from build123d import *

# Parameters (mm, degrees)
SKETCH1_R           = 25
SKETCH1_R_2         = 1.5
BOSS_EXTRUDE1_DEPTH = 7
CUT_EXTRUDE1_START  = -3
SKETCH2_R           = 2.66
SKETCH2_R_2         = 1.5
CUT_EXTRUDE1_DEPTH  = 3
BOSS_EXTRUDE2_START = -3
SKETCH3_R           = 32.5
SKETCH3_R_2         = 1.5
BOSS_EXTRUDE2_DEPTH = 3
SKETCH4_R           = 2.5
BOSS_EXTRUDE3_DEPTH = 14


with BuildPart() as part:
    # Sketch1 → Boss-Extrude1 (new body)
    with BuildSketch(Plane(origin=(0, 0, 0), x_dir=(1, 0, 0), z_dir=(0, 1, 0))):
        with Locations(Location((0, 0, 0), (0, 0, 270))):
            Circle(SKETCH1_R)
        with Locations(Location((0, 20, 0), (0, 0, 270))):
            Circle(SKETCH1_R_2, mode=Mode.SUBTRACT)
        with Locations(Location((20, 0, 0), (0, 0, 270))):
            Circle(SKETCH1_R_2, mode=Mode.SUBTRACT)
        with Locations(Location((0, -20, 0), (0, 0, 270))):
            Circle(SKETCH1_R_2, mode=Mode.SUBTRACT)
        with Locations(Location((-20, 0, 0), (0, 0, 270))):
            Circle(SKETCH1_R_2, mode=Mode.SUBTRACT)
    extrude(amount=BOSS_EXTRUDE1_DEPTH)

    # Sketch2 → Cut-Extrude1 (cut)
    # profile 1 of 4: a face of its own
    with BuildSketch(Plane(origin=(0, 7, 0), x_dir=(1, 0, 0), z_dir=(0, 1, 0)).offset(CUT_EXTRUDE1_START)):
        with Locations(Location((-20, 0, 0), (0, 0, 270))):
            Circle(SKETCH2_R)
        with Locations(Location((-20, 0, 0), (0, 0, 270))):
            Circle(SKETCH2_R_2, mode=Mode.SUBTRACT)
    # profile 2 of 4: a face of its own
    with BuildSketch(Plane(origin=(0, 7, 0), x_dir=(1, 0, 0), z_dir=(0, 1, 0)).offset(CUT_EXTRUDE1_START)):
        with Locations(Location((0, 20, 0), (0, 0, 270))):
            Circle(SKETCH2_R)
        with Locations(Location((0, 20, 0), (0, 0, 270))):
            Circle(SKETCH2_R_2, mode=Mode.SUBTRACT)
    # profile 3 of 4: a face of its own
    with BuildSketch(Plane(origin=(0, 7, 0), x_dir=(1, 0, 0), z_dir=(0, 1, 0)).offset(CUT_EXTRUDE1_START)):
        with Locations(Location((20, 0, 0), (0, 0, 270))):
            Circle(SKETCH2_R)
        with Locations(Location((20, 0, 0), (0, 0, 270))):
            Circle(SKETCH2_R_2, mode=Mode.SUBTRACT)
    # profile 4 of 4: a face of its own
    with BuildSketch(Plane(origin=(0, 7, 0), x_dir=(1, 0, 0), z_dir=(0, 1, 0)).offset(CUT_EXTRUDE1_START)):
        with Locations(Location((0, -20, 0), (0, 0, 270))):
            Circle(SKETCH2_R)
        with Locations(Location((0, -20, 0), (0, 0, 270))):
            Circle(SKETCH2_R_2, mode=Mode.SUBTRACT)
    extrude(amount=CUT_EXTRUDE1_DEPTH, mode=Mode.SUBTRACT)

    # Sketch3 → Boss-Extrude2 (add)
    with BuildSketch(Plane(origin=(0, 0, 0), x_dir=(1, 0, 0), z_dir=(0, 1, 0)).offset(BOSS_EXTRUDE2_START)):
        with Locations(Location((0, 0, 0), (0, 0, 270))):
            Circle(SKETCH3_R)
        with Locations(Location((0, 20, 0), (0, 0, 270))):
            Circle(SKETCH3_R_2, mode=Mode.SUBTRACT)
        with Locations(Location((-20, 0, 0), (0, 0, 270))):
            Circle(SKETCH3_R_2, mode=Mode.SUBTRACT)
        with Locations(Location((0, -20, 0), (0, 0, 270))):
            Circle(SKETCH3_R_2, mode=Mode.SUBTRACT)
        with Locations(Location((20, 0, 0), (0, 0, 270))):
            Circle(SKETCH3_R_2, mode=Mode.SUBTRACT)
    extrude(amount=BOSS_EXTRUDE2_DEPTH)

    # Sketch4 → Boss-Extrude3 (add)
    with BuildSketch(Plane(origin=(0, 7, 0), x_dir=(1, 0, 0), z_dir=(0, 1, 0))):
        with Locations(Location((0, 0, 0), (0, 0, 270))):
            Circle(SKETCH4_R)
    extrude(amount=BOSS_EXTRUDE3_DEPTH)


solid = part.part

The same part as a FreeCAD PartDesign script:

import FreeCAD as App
import Part
import Sketcher
from FreeCAD import Vector

doc = App.newDocument("Part")
body = doc.addObject("PartDesign::Body", "Body")

# Sketch on XZ plane
sketch1 = doc.addObject("Sketcher::SketchObject", "Sketch")
body.addObject(sketch1)
sketch1.AttachmentSupport = (doc.XZ_Plane, [""])
sketch1.MapMode = "FlatFace"
sketch1.addGeometry([
    Part.Circle(Vector(0, 0, 0), Vector(0, 0, 1), 25),  # 0
    Part.Circle(Vector(0, -20, 0), Vector(0, 0, 1), 1.5),  # 1
    Part.Circle(Vector(-20, 0, 0), Vector(0, 0, 1), 1.5),  # 2
    Part.Circle(Vector(20, 0, 0), Vector(0, 0, 1), 1.5),  # 3
    Part.Circle(Vector(0, 20, 0), Vector(0, 0, 1), 1.5),  # 4
], False)
sketch1.addConstraint([
    Sketcher.Constraint("Coincident", 0, 3, -1, 1),
    Sketcher.Constraint("Equal", 1, 2),
    Sketcher.Constraint("Equal", 2, 3),
    Sketcher.Constraint("Equal", 3, 4),
    Sketcher.Constraint("Symmetric", 2, 3, 3, 3, -1, 1),
    Sketcher.Constraint("Symmetric", 1, 3, 4, 3, -1, 1),
    Sketcher.Constraint("PointOnObject", 1, 3, -2),
    Sketcher.Constraint("PointOnObject", 2, 3, -1),
    Sketcher.Constraint("Diameter", 0, 50.0),
    Sketcher.Constraint("Diameter", 1, 3.0),
    Sketcher.Constraint("DistanceY", 1, 3, -1, 1, 20.0),
    Sketcher.Constraint("DistanceX", 2, 3, -1, 1, 20.0),
])
pad1 = doc.addObject("PartDesign::Pad", "Pad")
body.addObject(pad1)
pad1.Profile = sketch1
pad1.Length = 7
pad1.Reversed = True

# Sketch on XZ plane
sketch2 = doc.addObject("Sketcher::SketchObject", "Sketch001")
body.addObject(sketch2)
sketch2.AttachmentSupport = (doc.XZ_Plane, [""])
sketch2.MapMode = "FlatFace"
sketch2.AttachmentOffset = App.Placement(Vector(0, 0, -4), App.Rotation())
sketch2.addGeometry([
    Part.Circle(Vector(-20, 0, 0), Vector(0, 0, 1), 2.7),  # 0
    Part.Circle(Vector(-20, 0, 0), Vector(0, 0, 1), 1.5),  # 1
    Part.Circle(Vector(0, -20, 0), Vector(0, 0, 1), 2.7),  # 2
    Part.Circle(Vector(0, -20, 0), Vector(0, 0, 1), 1.5),  # 3
    Part.Circle(Vector(20, 0, 0), Vector(0, 0, 1), 2.7),  # 4
    Part.Circle(Vector(20, 0, 0), Vector(0, 0, 1), 1.5),  # 5
    Part.Circle(Vector(0, 20, 0), Vector(0, 0, 1), 2.7),  # 6
    Part.Circle(Vector(0, 20, 0), Vector(0, 0, 1), 1.5),  # 7
], False)
sketch2.addConstraint([
    Sketcher.Constraint("Coincident", 1, 3, 0, 3),
    Sketcher.Constraint("Coincident", 3, 3, 2, 3),
    Sketcher.Constraint("Coincident", 5, 3, 4, 3),
    Sketcher.Constraint("Coincident", 7, 3, 6, 3),
    Sketcher.Constraint("Equal", 0, 2),
    Sketcher.Constraint("Equal", 1, 3),
    Sketcher.Constraint("Equal", 2, 4),
    Sketcher.Constraint("Equal", 3, 5),
    Sketcher.Constraint("Equal", 4, 6),
    Sketcher.Constraint("Equal", 5, 7),
    Sketcher.Constraint("Symmetric", 0, 3, 4, 3, -1, 1),
    Sketcher.Constraint("Symmetric", 2, 3, 6, 3, -1, 1),
    Sketcher.Constraint("PointOnObject", 0, 3, -1),
    Sketcher.Constraint("PointOnObject", 2, 3, -2),
    Sketcher.Constraint("Diameter", 1, 3.0),
    Sketcher.Constraint("Diameter", 0, 5.32),
    Sketcher.Constraint("DistanceX", 0, 3, -1, 1, 20.0),
    Sketcher.Constraint("DistanceY", 2, 3, -1, 1, 20.0),
])
pocket1 = doc.addObject("PartDesign::Pocket", "Pocket")
body.addObject(pocket1)
pocket1.Profile = sketch2
pocket1.Length = 3

# Sketch on XZ plane
sketch3 = doc.addObject("Sketcher::SketchObject", "Sketch002")
body.addObject(sketch3)
sketch3.AttachmentSupport = (doc.XZ_Plane, [""])
sketch3.MapMode = "FlatFace"
sketch3.AttachmentOffset = App.Placement(Vector(0, 0, 3), App.Rotation())
sketch3.addGeometry([
    Part.Circle(Vector(0, 0, 0), Vector(0, 0, 1), 32.5),  # 0
    Part.Circle(Vector(0, -20, 0), Vector(0, 0, 1), 1.5),  # 1
    Part.Circle(Vector(-20, 0, 0), Vector(0, 0, 1), 1.5),  # 2
    Part.Circle(Vector(20, 0, 0), Vector(0, 0, 1), 1.5),  # 3
    Part.Circle(Vector(0, 20, 0), Vector(0, 0, 1), 1.5),  # 4
], False)
sketch3.addConstraint([
    Sketcher.Constraint("Coincident", 0, 3, -1, 1),
    Sketcher.Constraint("Equal", 1, 2),
    Sketcher.Constraint("Equal", 2, 3),
    Sketcher.Constraint("Equal", 3, 4),
    Sketcher.Constraint("Symmetric", 2, 3, 3, 3, -1, 1),
    Sketcher.Constraint("Symmetric", 1, 3, 4, 3, -1, 1),
    Sketcher.Constraint("PointOnObject", 1, 3, -2),
    Sketcher.Constraint("PointOnObject", 2, 3, -1),
    Sketcher.Constraint("Diameter", 0, 65.0),
    Sketcher.Constraint("Diameter", 1, 3.0),
    Sketcher.Constraint("DistanceY", 1, 3, -1, 1, 20.0),
    Sketcher.Constraint("DistanceX", 2, 3, -1, 1, 20.0),
])
pad2 = doc.addObject("PartDesign::Pad", "Pad001")
body.addObject(pad2)
pad2.Profile = sketch3
pad2.Length = 3
pad2.Reversed = True

# Sketch on XZ plane
sketch4 = doc.addObject("Sketcher::SketchObject", "Sketch003")
body.addObject(sketch4)
sketch4.AttachmentSupport = (doc.XZ_Plane, [""])
sketch4.MapMode = "FlatFace"
sketch4.AttachmentOffset = App.Placement(Vector(0, 0, -7), App.Rotation())
sketch4.addGeometry(Part.Circle(Vector(0, 0, 0), Vector(0, 0, 1), 2.5), False)
sketch4.addConstraint([
    Sketcher.Constraint("Coincident", 0, 3, -1, 1),
    Sketcher.Constraint("Diameter", 0, 5.0),
])
pad3 = doc.addObject("PartDesign::Pad", "Pad002")
body.addObject(pad3)
pad3.Profile = sketch4
pad3.Length = 14
pad3.Reversed = True

doc.recompute()
